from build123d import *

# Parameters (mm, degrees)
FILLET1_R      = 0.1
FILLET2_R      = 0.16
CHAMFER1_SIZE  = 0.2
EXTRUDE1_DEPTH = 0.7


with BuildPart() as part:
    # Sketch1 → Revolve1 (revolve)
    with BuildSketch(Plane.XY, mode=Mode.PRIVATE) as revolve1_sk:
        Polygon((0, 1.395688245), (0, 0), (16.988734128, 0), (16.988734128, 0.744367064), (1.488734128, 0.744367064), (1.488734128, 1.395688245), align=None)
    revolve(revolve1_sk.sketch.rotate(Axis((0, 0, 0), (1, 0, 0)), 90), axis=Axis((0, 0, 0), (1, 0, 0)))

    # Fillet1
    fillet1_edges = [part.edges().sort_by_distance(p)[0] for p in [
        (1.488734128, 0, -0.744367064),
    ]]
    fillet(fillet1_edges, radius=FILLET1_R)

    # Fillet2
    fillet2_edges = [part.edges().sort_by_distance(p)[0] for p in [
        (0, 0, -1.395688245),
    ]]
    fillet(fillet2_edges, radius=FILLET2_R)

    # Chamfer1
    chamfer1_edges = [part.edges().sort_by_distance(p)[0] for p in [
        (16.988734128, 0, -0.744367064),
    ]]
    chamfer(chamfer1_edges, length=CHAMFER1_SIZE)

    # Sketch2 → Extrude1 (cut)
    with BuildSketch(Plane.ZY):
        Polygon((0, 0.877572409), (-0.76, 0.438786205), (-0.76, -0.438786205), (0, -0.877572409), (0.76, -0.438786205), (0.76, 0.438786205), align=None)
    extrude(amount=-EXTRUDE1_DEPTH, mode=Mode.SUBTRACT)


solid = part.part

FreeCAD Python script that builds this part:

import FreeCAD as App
import Part
import Sketcher
from FreeCAD import Vector
Q = App.Units.Quantity


def edges_at(feature, points):
    """Names of the edges that pass closest to the given points."""
    edges = feature.Shape.Edges
    near = lambda p: min(range(len(edges)), key=lambda i: edges[i].distToShape(Part.Vertex(*p))[0])
    return sorted({f"Edge{near(p) + 1}" for p in points})


def add_polygon(sketch, points):
    """Adds a closed chain of lines whose ends are joined by coincident constraints."""
    first, n = sketch.GeometryCount, len(points)
    for a, b in zip(points, points[1:] + points[:1]):
        sketch.addGeometry(Part.LineSegment(App.Vector(*a, 0), App.Vector(*b, 0)), False)
    for i in range(n):
        sketch.addConstraint(Sketcher.Constraint("Coincident", first + i, 2, first + (i + 1) % n, 1))

doc = App.newDocument("Part")
params = doc.addObject("Spreadsheet::Sheet", "Params")
for row, (alias, value) in enumerate([
    ("sketch1_width", "15.5 mm"),
    ("revolution_angle", "360 deg"),
    ("fillet_radius", "0.1 mm"),
    ("fillet2_radius", "0.16 mm"),
    ("chamfer_size", "0.2 mm"),
    ("pocket1_length", "0.7 mm"),
], start=1):
    params.set(f"A{row}", alias)
    params.set(f"B{row}", "=" + value)
    params.setAlias(f"B{row}", alias)

body = doc.addObject("PartDesign::Body", "Body")

sketch1 = doc.addObject("Sketcher::SketchObject", "Sketch")
body.addObject(sketch1)
sketch1.AttachmentSupport = (doc.XY_Plane, [""])
sketch1.MapMode = "FlatFace"
add_polygon(sketch1, [(0, 1.4), (0, 0), (17, 0), (17, 0.7), (1.5, 0.7), (1.5, 1.4)])
sketch1.addConstraint(Sketcher.Constraint("Vertical", 0))
sketch1.addConstraint(Sketcher.Constraint("Horizontal", 1))
sketch1.addConstraint(Sketcher.Constraint("Vertical", 2))
sketch1.addConstraint(Sketcher.Constraint("Horizontal", 3))
sketch1.addConstraint(Sketcher.Constraint("Vertical", 4))
sketch1.addConstraint(Sketcher.Constraint("Horizontal", 5))
sketch1.addConstraint(Sketcher.Constraint("Coincident", 0, 2, -1, 1))
sketch1.addConstraint(Sketcher.Constraint("DistanceX", 3, 2, 3, 1, 15.5))
sketch1.addConstraint(Sketcher.Constraint("DistanceY", 0, 2, 0, 1, 1.395688))
sketch1.addConstraint(Sketcher.Constraint("DistanceY", 4, 1, 4, 2, 0.651321))
sketch1.addConstraint(Sketcher.Constraint("DistanceX", 1, 1, 1, 2, 16.988734))
sketch1.setExpression("Constraints[13]", "Params.sketch1_width")
revolution = doc.addObject("PartDesign::Revolution", "Revolution")
body.addObject(revolution)
revolution.Profile = sketch1
revolution.ReferenceAxis = (sketch1, ["H_Axis"])
revolution.setExpression("Angle", "Params.revolution_angle")
doc.recompute()

fillet = doc.addObject("PartDesign::Fillet", "Fillet")
body.addObject(fillet)
fillet.Base = (revolution, edges_at(revolution, [(1.489, 0, -0.744)]))
fillet.setExpression("Radius", "Params.fillet_radius")
doc.recompute()

fillet2 = doc.addObject("PartDesign::Fillet", "Fillet001")
body.addObject(fillet2)
fillet2.Base = (fillet, edges_at(fillet, [(0, 0, -1.396)]))
fillet2.setExpression("Radius", "Params.fillet2_radius")
doc.recompute()

chamfer = doc.addObject("PartDesign::Chamfer", "Chamfer")
body.addObject(chamfer)
chamfer.Base = (fillet2, edges_at(fillet2, [(16.989, 0, -0.744)]))
chamfer.setExpression("Size", "Params.chamfer_size")

sketch2 = doc.addObject("Sketcher::SketchObject", "Sketch001")
body.addObject(sketch2)
sketch2.AttachmentSupport = (doc.YZ_Plane, [""])
sketch2.MapMode = "FlatFace"
add_polygon(sketch2, [(0.9, 0), (0.4, -0.8), (-0.4, -0.8), (-0.9, 0), (-0.4, 0.8), (0.4, 0.8)])
sketch2.addConstraint(Sketcher.Constraint("Horizontal", 1))
sketch2.addConstraint(Sketcher.Constraint("Horizontal", 4))
sketch2.addConstraint(Sketcher.Constraint("Symmetric", 0, 2, 3, 2, -1, 1))
sketch2.addConstraint(Sketcher.Constraint("Symmetric", 2, 2, 5, 2, -1, 1))
sketch2.addConstraint(Sketcher.Constraint("PointOnObject", 2, 2, -1))
sketch2.addConstraint(Sketcher.Constraint("Parallel", 2, 5))
sketch2.addConstraint(Sketcher.Constraint("Vertical", 1, 2, 3, 2))
sketch2.addConstraint(Sketcher.Constraint("Angle", 0, Q("-120 deg")))
sketch2.addConstraint(Sketcher.Constraint("DistanceY", 0, 2, -1, 1, 0.76))
sketch2.addConstraint(Sketcher.Constraint("DistanceX", 1, 2, 1, 1, 0.877572))
pocket1 = doc.addObject("PartDesign::Pocket", "Pocket")
body.addObject(pocket1)
pocket1.Profile = sketch2
pocket1.setExpression("Length", "Params.pocket1_length")
pocket1.Reversed = True

doc.recompute()
